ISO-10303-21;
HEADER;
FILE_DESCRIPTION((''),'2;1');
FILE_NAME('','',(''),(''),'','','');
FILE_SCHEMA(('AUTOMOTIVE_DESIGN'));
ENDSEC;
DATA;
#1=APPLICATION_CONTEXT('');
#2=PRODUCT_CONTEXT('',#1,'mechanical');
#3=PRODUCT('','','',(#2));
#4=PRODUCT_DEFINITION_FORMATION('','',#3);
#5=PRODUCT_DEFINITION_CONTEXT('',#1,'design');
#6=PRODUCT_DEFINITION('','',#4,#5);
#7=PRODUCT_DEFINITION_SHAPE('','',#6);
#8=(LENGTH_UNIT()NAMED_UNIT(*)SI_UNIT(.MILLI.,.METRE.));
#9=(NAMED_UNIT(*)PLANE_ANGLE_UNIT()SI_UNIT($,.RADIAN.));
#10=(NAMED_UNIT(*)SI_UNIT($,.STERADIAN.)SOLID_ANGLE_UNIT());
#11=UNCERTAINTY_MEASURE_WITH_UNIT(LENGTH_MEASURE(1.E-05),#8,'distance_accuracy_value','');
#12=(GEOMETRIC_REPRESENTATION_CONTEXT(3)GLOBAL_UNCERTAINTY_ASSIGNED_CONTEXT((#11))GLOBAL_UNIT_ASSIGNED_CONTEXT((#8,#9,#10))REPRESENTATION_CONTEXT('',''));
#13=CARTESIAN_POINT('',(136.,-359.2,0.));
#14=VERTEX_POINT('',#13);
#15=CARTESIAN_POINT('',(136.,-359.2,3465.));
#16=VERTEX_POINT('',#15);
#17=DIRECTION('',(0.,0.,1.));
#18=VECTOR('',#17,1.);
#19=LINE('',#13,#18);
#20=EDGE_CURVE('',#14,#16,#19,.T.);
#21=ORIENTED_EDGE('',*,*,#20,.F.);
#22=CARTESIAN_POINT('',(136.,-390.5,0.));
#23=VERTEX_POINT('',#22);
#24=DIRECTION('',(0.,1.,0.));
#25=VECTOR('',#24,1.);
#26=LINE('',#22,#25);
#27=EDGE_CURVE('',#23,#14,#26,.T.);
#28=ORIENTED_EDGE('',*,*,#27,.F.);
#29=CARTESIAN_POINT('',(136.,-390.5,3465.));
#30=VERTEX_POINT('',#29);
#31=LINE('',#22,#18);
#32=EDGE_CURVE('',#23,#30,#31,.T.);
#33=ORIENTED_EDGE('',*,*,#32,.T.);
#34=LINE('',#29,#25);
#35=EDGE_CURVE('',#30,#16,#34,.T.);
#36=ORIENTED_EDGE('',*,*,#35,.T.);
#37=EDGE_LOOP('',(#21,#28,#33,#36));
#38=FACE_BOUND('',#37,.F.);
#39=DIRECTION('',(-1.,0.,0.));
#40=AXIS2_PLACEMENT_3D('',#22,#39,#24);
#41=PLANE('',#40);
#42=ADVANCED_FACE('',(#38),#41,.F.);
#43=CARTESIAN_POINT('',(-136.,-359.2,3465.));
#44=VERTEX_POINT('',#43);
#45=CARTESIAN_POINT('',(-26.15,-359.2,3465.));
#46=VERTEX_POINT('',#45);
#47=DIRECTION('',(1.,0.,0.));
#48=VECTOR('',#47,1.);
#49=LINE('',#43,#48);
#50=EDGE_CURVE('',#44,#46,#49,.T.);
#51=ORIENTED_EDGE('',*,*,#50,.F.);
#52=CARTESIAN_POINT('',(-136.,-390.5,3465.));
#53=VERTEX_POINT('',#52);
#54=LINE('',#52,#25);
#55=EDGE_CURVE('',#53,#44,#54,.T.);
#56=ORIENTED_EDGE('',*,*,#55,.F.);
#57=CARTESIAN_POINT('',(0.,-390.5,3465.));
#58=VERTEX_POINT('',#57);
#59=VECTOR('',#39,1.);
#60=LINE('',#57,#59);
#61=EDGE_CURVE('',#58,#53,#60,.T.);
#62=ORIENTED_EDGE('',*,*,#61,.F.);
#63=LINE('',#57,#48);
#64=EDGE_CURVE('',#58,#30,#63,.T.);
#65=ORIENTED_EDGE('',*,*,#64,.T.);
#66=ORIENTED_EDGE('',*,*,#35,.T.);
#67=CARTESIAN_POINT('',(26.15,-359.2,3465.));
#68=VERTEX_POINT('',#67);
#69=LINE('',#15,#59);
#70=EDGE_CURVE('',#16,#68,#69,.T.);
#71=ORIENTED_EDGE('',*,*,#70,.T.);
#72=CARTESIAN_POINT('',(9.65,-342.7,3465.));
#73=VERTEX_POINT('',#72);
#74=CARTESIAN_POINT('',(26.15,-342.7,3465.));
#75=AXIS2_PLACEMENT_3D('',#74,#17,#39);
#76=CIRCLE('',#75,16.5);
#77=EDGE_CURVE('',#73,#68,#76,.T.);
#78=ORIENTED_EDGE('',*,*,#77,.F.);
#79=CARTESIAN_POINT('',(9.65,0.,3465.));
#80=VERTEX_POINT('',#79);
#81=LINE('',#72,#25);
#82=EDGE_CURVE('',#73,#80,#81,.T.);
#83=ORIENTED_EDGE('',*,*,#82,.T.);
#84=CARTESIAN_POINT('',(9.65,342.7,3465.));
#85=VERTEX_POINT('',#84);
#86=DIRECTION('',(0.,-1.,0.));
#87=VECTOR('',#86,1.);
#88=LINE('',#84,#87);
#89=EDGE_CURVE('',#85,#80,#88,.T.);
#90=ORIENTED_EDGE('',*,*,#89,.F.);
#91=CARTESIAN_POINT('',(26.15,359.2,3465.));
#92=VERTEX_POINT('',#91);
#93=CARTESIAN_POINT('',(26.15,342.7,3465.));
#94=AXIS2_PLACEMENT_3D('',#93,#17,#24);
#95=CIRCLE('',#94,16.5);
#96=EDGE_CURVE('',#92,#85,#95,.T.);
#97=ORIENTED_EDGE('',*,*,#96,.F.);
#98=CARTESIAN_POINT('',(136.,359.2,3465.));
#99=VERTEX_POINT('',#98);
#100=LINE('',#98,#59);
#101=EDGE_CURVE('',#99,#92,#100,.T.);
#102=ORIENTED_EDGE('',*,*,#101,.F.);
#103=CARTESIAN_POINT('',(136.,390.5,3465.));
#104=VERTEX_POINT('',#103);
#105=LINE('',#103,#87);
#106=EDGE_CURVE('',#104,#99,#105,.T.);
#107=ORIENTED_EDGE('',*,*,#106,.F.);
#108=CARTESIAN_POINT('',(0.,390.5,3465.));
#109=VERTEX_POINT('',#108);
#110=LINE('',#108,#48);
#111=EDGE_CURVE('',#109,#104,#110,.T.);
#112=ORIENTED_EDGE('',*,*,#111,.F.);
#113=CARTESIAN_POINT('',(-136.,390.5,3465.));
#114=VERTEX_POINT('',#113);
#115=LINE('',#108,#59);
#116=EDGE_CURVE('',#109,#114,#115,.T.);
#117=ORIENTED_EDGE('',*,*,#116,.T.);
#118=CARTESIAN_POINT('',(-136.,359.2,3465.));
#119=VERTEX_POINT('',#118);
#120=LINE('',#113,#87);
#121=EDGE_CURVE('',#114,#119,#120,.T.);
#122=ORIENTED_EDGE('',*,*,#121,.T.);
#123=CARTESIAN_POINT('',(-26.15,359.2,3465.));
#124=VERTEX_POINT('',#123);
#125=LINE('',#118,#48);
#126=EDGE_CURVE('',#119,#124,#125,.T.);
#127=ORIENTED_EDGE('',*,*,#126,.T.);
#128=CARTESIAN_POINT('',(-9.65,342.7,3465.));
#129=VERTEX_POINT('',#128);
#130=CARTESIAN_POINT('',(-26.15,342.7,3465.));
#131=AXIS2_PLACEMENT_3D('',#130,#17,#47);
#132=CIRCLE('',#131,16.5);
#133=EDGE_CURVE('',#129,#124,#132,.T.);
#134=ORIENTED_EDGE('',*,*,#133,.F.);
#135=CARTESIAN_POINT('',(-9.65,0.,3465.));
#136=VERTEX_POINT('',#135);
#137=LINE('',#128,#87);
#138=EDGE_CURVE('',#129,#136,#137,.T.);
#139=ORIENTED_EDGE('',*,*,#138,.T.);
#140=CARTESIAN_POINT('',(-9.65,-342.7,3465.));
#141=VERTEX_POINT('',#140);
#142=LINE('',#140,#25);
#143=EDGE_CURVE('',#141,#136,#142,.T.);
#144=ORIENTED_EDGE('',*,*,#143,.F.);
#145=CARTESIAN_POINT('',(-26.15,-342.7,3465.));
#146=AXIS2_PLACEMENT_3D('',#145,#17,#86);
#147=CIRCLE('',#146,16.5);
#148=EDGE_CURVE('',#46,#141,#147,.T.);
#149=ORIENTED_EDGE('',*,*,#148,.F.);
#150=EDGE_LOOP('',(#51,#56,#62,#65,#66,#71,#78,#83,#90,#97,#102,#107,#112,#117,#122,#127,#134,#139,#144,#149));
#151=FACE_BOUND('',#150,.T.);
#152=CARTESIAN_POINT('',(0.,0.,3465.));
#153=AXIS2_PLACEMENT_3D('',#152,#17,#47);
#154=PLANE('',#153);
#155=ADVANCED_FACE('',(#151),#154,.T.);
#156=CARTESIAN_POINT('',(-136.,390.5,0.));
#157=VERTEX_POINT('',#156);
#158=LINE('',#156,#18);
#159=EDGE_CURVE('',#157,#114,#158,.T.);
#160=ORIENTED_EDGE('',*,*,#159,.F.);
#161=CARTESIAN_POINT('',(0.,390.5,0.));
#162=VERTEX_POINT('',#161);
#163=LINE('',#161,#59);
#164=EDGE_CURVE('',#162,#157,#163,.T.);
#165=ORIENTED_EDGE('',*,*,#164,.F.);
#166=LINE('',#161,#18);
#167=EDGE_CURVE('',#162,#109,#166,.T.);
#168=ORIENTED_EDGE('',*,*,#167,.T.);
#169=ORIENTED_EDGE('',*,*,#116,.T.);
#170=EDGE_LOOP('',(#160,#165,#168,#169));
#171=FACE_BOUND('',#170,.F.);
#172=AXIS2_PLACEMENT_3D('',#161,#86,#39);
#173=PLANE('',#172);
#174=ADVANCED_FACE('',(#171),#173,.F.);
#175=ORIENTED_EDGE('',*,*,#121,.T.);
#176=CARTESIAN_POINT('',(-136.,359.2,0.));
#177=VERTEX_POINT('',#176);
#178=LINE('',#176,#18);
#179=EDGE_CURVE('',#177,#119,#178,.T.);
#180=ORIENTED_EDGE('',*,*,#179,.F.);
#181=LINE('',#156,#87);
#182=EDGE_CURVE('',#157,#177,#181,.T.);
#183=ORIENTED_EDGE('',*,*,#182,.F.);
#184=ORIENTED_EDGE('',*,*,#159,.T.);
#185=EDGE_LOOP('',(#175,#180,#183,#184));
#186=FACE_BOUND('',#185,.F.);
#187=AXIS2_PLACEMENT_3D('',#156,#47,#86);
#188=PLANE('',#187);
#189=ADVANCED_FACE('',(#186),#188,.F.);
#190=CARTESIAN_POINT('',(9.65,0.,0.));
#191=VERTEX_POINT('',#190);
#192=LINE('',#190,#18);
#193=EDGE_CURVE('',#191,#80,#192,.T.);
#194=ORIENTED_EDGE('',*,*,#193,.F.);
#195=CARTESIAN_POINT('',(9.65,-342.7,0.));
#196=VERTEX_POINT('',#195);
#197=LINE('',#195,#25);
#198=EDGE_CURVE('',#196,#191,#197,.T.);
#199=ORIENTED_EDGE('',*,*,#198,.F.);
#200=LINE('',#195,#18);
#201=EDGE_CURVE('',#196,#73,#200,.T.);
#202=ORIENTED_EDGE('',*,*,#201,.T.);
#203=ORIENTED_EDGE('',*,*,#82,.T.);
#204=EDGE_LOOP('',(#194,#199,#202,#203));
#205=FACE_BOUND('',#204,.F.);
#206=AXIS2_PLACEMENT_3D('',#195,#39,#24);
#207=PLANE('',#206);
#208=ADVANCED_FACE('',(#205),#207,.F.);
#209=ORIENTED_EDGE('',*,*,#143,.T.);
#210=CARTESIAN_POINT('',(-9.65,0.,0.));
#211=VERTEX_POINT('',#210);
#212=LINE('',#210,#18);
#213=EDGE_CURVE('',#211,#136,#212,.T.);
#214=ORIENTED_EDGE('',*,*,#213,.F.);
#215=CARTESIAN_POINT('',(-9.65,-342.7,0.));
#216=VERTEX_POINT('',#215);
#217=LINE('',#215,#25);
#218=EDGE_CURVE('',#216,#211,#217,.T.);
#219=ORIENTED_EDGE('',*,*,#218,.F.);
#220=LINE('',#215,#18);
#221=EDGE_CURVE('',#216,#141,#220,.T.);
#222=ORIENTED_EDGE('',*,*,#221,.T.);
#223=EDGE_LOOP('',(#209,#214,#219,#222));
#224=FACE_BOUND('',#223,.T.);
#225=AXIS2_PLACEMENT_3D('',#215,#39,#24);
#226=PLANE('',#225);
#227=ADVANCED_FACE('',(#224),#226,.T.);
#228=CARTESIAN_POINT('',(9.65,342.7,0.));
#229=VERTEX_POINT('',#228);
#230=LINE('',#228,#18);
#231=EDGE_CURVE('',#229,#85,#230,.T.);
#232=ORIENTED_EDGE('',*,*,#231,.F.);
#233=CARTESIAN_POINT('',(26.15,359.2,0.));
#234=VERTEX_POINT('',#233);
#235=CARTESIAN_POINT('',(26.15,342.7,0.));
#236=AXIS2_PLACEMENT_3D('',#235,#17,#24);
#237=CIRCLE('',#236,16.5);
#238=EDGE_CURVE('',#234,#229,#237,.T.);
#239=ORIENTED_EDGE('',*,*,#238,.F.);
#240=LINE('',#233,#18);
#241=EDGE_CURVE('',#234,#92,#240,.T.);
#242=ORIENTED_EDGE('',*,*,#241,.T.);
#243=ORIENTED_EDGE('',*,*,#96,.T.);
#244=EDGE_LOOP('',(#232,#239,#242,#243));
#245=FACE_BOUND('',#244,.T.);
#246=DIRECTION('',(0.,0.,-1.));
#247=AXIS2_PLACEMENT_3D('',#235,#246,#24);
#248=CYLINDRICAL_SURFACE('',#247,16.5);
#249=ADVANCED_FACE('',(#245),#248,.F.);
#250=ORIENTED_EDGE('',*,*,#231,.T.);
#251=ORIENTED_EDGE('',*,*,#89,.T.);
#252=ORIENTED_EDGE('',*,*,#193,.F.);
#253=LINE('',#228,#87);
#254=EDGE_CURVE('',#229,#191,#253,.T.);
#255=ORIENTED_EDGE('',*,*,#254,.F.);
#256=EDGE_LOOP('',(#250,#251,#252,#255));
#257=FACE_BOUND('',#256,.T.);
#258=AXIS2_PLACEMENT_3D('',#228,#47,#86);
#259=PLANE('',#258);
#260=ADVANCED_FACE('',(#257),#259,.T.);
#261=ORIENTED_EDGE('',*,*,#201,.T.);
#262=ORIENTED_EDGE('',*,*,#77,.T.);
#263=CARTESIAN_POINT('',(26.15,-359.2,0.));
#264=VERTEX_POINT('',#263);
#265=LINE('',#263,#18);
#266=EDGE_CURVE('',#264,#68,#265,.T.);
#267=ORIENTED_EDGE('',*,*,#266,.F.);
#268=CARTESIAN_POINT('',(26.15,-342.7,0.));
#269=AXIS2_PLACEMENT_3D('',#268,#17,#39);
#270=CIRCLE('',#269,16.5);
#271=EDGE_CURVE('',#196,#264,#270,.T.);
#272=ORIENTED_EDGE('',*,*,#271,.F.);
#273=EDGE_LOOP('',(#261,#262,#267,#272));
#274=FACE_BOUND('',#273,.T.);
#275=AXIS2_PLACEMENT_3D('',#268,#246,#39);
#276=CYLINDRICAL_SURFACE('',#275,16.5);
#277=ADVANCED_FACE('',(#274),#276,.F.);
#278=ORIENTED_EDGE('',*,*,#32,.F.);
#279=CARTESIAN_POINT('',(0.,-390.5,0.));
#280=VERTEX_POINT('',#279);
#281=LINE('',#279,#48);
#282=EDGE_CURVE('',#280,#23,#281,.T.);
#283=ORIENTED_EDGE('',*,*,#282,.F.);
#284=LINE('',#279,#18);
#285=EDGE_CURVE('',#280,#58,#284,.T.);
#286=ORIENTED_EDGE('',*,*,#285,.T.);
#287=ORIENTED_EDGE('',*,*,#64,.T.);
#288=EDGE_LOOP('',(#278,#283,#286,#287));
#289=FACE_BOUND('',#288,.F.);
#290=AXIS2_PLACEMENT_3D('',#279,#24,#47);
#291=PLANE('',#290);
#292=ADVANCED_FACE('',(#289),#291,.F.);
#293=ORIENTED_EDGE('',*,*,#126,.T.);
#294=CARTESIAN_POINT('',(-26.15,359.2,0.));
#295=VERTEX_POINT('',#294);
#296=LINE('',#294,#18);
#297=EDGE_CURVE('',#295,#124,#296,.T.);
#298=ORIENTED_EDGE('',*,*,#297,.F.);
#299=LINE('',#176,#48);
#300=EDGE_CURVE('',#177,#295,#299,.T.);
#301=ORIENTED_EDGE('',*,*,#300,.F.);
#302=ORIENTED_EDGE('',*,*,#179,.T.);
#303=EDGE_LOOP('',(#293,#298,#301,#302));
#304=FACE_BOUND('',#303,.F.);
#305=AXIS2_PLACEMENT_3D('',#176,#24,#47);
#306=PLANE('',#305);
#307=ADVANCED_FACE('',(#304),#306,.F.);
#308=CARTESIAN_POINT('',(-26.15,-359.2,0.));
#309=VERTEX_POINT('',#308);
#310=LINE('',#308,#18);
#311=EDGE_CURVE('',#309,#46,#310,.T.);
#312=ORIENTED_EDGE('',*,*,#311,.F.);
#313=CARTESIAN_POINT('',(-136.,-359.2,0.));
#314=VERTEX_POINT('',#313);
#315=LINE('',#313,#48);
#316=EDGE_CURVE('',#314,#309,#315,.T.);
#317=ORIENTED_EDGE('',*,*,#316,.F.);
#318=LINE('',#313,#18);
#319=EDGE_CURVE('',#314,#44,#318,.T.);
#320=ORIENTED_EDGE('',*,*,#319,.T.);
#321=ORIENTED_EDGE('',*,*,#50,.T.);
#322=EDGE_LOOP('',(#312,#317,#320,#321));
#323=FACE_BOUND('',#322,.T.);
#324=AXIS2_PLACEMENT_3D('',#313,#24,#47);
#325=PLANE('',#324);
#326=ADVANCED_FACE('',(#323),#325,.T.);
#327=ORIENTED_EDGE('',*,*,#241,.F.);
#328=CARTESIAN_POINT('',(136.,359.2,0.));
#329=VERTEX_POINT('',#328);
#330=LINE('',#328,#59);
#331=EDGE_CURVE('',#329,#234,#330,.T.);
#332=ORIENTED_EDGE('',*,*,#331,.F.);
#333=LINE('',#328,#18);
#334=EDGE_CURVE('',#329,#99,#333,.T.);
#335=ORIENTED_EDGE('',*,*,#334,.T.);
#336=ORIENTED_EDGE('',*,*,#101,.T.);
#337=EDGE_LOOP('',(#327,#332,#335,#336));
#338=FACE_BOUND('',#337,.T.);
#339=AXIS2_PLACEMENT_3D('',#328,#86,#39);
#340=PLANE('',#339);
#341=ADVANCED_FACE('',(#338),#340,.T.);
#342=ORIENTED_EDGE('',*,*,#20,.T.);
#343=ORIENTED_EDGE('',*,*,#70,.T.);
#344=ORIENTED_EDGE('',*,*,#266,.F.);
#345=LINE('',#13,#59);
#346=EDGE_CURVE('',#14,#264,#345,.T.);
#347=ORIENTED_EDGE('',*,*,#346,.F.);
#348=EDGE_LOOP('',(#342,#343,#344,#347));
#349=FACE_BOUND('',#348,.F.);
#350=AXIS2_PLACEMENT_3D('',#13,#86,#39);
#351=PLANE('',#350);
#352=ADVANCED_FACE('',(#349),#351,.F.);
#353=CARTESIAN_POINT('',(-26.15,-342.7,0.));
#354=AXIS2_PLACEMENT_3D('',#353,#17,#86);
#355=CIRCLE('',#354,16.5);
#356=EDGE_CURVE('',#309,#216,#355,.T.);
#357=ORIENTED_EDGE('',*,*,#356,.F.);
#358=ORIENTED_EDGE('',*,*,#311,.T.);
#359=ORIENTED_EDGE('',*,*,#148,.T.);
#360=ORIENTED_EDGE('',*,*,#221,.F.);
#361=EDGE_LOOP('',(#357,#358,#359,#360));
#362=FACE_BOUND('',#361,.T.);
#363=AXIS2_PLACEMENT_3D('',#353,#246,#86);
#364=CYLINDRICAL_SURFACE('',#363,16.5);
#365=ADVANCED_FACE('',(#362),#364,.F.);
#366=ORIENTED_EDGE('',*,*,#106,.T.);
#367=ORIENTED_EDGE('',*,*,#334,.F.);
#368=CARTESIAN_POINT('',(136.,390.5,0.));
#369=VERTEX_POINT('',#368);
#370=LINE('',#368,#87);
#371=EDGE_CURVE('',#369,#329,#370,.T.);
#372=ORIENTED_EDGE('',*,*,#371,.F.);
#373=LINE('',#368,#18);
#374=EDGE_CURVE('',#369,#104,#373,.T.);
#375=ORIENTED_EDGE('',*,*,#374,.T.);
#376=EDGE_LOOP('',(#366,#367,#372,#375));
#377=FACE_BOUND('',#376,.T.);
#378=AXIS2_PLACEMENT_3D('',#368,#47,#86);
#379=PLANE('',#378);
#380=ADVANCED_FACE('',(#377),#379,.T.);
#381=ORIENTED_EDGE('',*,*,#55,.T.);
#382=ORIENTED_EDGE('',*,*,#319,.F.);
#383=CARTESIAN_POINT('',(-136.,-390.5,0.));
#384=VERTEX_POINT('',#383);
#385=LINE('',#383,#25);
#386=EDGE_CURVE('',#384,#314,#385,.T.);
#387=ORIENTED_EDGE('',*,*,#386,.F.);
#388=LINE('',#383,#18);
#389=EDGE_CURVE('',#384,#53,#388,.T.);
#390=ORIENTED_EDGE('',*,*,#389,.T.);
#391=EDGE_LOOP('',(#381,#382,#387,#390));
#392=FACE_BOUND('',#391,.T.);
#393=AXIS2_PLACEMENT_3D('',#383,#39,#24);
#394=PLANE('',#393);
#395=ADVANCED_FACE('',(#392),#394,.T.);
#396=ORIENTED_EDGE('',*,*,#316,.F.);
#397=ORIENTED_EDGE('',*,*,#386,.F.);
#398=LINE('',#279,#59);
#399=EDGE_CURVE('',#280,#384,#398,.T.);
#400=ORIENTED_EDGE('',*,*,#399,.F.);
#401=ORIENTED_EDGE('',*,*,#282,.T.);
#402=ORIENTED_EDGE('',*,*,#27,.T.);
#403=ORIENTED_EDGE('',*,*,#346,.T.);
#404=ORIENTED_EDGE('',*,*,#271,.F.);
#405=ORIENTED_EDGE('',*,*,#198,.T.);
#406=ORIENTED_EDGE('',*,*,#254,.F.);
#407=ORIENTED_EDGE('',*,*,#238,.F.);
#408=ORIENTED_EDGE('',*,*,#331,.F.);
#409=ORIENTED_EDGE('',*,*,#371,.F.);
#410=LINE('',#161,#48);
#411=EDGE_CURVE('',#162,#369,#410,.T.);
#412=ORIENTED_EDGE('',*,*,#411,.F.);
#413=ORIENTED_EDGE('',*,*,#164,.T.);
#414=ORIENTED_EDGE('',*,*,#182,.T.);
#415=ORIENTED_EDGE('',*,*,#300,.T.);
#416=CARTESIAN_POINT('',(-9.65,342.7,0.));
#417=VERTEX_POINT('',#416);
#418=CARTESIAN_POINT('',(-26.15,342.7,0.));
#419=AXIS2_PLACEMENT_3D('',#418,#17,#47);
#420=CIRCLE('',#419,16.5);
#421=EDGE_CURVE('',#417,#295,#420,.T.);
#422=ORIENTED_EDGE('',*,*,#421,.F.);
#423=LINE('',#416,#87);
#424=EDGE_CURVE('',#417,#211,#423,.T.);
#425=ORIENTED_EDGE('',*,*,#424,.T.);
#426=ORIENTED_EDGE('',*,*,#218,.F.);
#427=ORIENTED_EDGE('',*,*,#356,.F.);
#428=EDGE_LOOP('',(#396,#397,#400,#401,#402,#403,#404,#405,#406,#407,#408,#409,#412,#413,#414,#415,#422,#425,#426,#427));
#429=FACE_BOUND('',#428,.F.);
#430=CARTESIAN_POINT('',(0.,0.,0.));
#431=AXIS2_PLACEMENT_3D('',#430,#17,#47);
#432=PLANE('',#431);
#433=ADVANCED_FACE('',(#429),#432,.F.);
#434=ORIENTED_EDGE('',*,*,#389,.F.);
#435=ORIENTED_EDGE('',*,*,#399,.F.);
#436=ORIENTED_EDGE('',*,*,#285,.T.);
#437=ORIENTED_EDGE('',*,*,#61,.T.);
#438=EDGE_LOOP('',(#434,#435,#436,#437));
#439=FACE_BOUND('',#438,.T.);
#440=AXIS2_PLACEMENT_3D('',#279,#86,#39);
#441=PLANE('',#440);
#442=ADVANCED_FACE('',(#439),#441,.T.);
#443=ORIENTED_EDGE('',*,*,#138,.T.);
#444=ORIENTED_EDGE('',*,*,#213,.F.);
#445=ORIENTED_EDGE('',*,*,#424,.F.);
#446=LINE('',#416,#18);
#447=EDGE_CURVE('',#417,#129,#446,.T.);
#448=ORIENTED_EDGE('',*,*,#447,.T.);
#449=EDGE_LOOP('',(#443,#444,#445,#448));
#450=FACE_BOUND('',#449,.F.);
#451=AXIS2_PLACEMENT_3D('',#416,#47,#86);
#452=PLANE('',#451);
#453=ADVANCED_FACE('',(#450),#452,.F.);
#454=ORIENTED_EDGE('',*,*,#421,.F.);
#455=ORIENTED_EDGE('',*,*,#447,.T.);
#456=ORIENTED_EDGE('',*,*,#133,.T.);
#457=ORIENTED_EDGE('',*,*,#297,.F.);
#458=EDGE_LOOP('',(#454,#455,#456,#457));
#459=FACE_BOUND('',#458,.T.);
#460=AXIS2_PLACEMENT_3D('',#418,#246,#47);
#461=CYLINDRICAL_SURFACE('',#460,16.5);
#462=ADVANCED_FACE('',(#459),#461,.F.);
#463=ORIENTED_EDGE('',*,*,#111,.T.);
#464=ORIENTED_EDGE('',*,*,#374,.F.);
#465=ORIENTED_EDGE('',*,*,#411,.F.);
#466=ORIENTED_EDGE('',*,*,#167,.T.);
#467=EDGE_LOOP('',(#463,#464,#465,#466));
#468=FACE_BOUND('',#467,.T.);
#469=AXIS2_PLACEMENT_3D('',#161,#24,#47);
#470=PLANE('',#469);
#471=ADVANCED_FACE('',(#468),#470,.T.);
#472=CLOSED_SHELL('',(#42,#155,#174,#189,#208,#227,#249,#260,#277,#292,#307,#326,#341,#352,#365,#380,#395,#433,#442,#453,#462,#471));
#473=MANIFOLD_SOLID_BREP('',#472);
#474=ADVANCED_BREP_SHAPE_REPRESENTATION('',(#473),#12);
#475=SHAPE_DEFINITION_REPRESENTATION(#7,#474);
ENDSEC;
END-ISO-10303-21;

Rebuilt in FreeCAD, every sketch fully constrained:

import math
import FreeCAD as App
import Part
import Sketcher

V = App.Vector

doc = App.newDocument("Part")
body = doc.addObject("PartDesign::Body", "Body")

sketch1 = body.newObject("Sketcher::SketchObject", "Sketch")
sketch1.AttachmentSupport = (doc.getObject("XY_Plane"), [""])
sketch1.MapMode = "FlatFace"
sketch1.addGeometry(Part.LineSegment(V(-136, -359.2, 0), V(-136, -390.5, 0)), False)
sketch1.addGeometry(Part.LineSegment(V(-136, -390.5, 0), V(136, -390.5, 0)), False)
sketch1.addGeometry(Part.LineSegment(V(136, -390.5, 0), V(136, -359.2, 0)), False)
sketch1.addGeometry(Part.LineSegment(V(136, -359.2, 0), V(26.15, -359.2, 0)), False)
sketch1.addGeometry(Part.ArcOfCircle(Part.Circle(V(26.15, -342.7, 0), V(0, 0, 1), 16.5), math.radians(180), math.radians(270)), False)
sketch1.addGeometry(Part.LineSegment(V(9.65, -342.7, 0), V(9.65, 342.7, 0)), False)
sketch1.addGeometry(Part.ArcOfCircle(Part.Circle(V(26.15, 342.7, 0), V(0, 0, 1), 16.5), math.radians(90), math.radians(180)), False)
sketch1.addGeometry(Part.LineSegment(V(26.15, 359.2, 0), V(136, 359.2, 0)), False)
sketch1.addGeometry(Part.LineSegment(V(136, 359.2, 0), V(136, 390.5, 0)), False)
sketch1.addGeometry(Part.LineSegment(V(136, 390.5, 0), V(-136, 390.5, 0)), False)
sketch1.addGeometry(Part.LineSegment(V(-136, 390.5, 0), V(-136, 359.2, 0)), False)
sketch1.addGeometry(Part.LineSegment(V(-136, 359.2, 0), V(-26.15, 359.2, 0)), False)
sketch1.addGeometry(Part.ArcOfCircle(Part.Circle(V(-26.15, 342.7, 0), V(0, 0, 1), 16.5), math.radians(0), math.radians(90)), False)
sketch1.addGeometry(Part.LineSegment(V(-9.65, 342.7, 0), V(-9.65, -342.7, 0)), False)
sketch1.addGeometry(Part.ArcOfCircle(Part.Circle(V(-26.15, -342.7, 0), V(0, 0, 1), 16.5), math.radians(-90), math.radians(0)), False)
sketch1.addGeometry(Part.LineSegment(V(-26.15, -359.2, 0), V(-136, -359.2, 0)), False)
sketch1.addConstraint(Sketcher.Constraint("Coincident", 0, 2, 1, 1))
sketch1.addConstraint(Sketcher.Constraint("Coincident", 1, 2, 2, 1))
sketch1.addConstraint(Sketcher.Constraint("Coincident", 2, 2, 3, 1))
sketch1.addConstraint(Sketcher.Constraint("Tangent", 3, 2, 4, 2))
sketch1.addConstraint(Sketcher.Constraint("Tangent", 4, 1, 5, 1))
sketch1.addConstraint(Sketcher.Constraint("Tangent", 5, 2, 6, 2))
sketch1.addConstraint(Sketcher.Constraint("Tangent", 6, 1, 7, 1))
sketch1.addConstraint(Sketcher.Constraint("Coincident", 7, 2, 8, 1))
sketch1.addConstraint(Sketcher.Constraint("Coincident", 8, 2, 9, 1))
sketch1.addConstraint(Sketcher.Constraint("Coincident", 9, 2, 10, 1))
sketch1.addConstraint(Sketcher.Constraint("Coincident", 10, 2, 11, 1))
sketch1.addConstraint(Sketcher.Constraint("Tangent", 11, 2, 12, 2))
sketch1.addConstraint(Sketcher.Constraint("Tangent", 12, 1, 13, 1))
sketch1.addConstraint(Sketcher.Constraint("Tangent", 13, 2, 14, 2))
sketch1.addConstraint(Sketcher.Constraint("Tangent", 14, 1, 15, 1))
sketch1.addConstraint(Sketcher.Constraint("Coincident", 15, 2, 0, 1))
sketch1.addConstraint(Sketcher.Constraint("Vertical", 0))
sketch1.addConstraint(Sketcher.Constraint("Horizontal", 1))
sketch1.addConstraint(Sketcher.Constraint("Vertical", 2))
sketch1.addConstraint(Sketcher.Constraint("Horizontal", 3))
sketch1.addConstraint(Sketcher.Constraint("Vertical", 5))
sketch1.addConstraint(Sketcher.Constraint("Horizontal", 7))
sketch1.addConstraint(Sketcher.Constraint("Vertical", 8))
sketch1.addConstraint(Sketcher.Constraint("Horizontal", 9))
sketch1.addConstraint(Sketcher.Constraint("Vertical", 10))
sketch1.addConstraint(Sketcher.Constraint("Horizontal", 11))
sketch1.addConstraint(Sketcher.Constraint("Vertical", 13))
sketch1.addConstraint(Sketcher.Constraint("Horizontal", 15))
sketch1.addConstraint(Sketcher.Constraint("Equal", 4, 6))
sketch1.addConstraint(Sketcher.Constraint("Equal", 6, 12))
sketch1.addConstraint(Sketcher.Constraint("Equal", 12, 14))
sketch1.addConstraint(Sketcher.Constraint("Symmetric", 4, 3, 12, 3, -1, 1))
sketch1.addConstraint(Sketcher.Constraint("Symmetric", 0, 2, 8, 2, -1, 1))
sketch1.addConstraint(Sketcher.Constraint("Symmetric", 7, 2, 10, 2, -2))
sketch1.addConstraint(Sketcher.Constraint("Symmetric", 2, 2, 15, 2, -2))
sketch1.addConstraint(Sketcher.Constraint("Radius", 4, 16.5))
sketch1.addConstraint(Sketcher.Constraint("DistanceY", 0, 2, 0, 1, 31.3))
sketch1.addConstraint(Sketcher.Constraint("DistanceX", 0, 2, -1, 1, 136.0))
sketch1.addConstraint(Sketcher.Constraint("DistanceY", 0, 2, -1, 1, 390.5))
sketch1.addConstraint(Sketcher.Constraint("DistanceX", -1, 1, 4, 1, 9.65))
pad1 = body.newObject("PartDesign::Pad", "Pad")
pad1.Profile = sketch1
pad1.Length = 3465

doc.recompute()
